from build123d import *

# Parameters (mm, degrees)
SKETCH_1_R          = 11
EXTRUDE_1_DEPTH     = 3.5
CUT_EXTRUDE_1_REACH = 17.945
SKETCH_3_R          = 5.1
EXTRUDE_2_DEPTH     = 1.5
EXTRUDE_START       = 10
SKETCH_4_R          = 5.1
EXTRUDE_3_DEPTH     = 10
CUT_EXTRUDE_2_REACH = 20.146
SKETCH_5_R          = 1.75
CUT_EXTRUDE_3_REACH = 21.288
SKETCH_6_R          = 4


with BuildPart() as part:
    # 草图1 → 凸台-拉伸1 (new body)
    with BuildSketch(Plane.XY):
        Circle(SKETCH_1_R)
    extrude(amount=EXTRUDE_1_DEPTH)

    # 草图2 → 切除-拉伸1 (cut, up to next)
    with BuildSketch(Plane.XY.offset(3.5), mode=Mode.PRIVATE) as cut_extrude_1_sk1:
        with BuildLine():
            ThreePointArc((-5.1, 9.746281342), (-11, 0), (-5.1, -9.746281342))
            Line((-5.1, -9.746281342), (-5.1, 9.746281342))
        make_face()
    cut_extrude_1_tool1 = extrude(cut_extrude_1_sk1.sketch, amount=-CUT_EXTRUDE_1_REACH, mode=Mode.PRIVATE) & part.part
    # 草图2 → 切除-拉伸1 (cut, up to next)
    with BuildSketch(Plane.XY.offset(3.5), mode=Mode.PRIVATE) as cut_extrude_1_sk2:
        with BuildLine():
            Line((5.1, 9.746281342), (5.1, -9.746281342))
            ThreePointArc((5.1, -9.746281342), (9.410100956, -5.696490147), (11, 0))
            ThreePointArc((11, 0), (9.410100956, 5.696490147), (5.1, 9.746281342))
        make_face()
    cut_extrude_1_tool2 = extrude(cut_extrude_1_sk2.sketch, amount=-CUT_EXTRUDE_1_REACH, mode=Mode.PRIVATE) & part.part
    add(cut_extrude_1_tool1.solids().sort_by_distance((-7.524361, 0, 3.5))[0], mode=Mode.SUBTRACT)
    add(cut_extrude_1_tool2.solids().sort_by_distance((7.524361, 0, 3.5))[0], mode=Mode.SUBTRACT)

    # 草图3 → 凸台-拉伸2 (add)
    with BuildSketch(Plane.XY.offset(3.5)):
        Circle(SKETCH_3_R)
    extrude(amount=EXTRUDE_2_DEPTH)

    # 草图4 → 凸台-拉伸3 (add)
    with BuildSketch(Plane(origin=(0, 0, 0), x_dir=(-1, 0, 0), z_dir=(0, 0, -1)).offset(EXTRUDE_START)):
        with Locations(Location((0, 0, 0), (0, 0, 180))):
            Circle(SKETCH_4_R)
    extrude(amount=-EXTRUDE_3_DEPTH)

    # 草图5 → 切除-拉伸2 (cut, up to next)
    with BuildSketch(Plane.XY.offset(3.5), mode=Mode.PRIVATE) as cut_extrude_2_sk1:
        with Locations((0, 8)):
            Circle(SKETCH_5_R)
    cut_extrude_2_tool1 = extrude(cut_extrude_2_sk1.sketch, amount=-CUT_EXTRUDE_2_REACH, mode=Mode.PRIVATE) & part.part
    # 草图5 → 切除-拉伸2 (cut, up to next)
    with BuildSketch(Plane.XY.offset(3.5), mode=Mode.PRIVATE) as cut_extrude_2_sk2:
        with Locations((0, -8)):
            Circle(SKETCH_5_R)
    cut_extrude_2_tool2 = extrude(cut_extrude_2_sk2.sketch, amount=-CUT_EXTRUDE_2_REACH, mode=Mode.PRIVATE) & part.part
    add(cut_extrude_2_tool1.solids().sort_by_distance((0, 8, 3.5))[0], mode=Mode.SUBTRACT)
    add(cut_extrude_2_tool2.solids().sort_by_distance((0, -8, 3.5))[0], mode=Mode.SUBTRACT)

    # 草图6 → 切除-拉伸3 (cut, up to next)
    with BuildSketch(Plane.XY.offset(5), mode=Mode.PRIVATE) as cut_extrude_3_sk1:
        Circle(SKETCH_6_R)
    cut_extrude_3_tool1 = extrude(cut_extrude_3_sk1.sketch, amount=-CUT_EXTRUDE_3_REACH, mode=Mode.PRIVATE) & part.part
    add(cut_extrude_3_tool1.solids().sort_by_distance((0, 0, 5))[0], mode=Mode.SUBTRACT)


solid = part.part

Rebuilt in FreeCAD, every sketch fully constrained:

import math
import FreeCAD as App
import Part
import Sketcher

V = App.Vector
Q = App.Units.Quantity

doc = App.newDocument("Part")
body = doc.addObject("PartDesign::Body", "Body")

sketch1 = doc.addObject("Sketcher::SketchObject", "Sketch")
body.addObject(sketch1)
sketch1.AttachmentSupport = (doc.XY_Plane, [""])
sketch1.MapMode = "FlatFace"
sketch1.addGeometry(Part.Circle(V(0, 0, 0), V(0, 0, 1), 11), False)
sketch1.addConstraint([
    Sketcher.Constraint("Coincident", 0, 3, -1, 1),
    Sketcher.Constraint("Diameter", 0, Q("22 mm")),
])
pad1 = doc.addObject("PartDesign::Pad", "Pad")
body.addObject(pad1)
pad1.Profile = sketch1
pad1.Length = 3.5

sketch2 = doc.addObject("Sketcher::SketchObject", "Sketch001")
body.addObject(sketch2)
sketch2.AttachmentSupport = (doc.XY_Plane, [""])
sketch2.MapMode = "FlatFace"
sketch2.AttachmentOffset = App.Placement(V(0, 0, 3.5), App.Rotation())
sketch2.addGeometry([
    Part.ArcOfCircle(Part.Circle(V(0, 0, 0), V(0, 0, 1), 11), math.radians(118), math.radians(242)),
    Part.LineSegment(V(-5, -10, 0), V(-5, 10, 0)),
], False)
sketch2.addConstraint([
    Sketcher.Constraint("Coincident", 0, 1, 1, 2),
    Sketcher.Constraint("Coincident", 1, 1, 0, 2),
    Sketcher.Constraint("Vertical", 1),
    Sketcher.Constraint("Coincident", 0, 3, -1, 1),
    Sketcher.Constraint("Radius", 0, Q("11 mm")),
    Sketcher.Constraint("DistanceX", 0, 1, -1, 1, Q("5.1 mm")),
])
pocket1 = doc.addObject("PartDesign::Pocket", "Pocket")
body.addObject(pocket1)
pocket1.Profile = sketch2
pocket1.Type = "UpToFirst"

sketch3 = doc.addObject("Sketcher::SketchObject", "Sketch002")
body.addObject(sketch3)
sketch3.AttachmentSupport = (doc.XY_Plane, [""])
sketch3.MapMode = "FlatFace"
sketch3.AttachmentOffset = App.Placement(V(0, 0, 3.5), App.Rotation())
sketch3.addGeometry([
    Part.LineSegment(V(5, 10, 0), V(5, -10, 0)),
    Part.ArcOfCircle(Part.Circle(V(0, 0, 0), V(0, 0, 1), 11), math.radians(-62), math.radians(0)),
    Part.ArcOfCircle(Part.Circle(V(0, 0, 0), V(0, 0, 1), 11), math.radians(0), math.radians(62)),
], False)
sketch3.addConstraint([
    Sketcher.Constraint("Coincident", 0, 2, 1, 1),
    Sketcher.Constraint("Tangent", 1, 2, 2, 1),
    Sketcher.Constraint("Coincident", 2, 2, 0, 1),
    Sketcher.Constraint("Vertical", 0),
    Sketcher.Constraint("Coincident", 1, 3, -1, 1),
    Sketcher.Constraint("Equal", 1, 2),
    Sketcher.Constraint("PointOnObject", 1, 2, -1),
    Sketcher.Constraint("Radius", 1, Q("11 mm")),
    Sketcher.Constraint("DistanceX", -1, 1, 0, 2, Q("5.1 mm")),
])
pocket2 = doc.addObject("PartDesign::Pocket", "Pocket001")
body.addObject(pocket2)
pocket2.Profile = sketch3
pocket2.Type = "UpToFirst"

sketch4 = doc.addObject("Sketcher::SketchObject", "Sketch003")
body.addObject(sketch4)
sketch4.AttachmentSupport = (doc.XY_Plane, [""])
sketch4.MapMode = "FlatFace"
sketch4.AttachmentOffset = App.Placement(V(0, 0, 3.5), App.Rotation())
sketch4.addGeometry(Part.Circle(V(0, 0, 0), V(0, 0, 1), 5), False)
sketch4.addConstraint([
    Sketcher.Constraint("Coincident", 0, 3, -1, 1),
    Sketcher.Constraint("Diameter", 0, Q("10.2 mm")),
])
pad2 = doc.addObject("PartDesign::Pad", "Pad001")
body.addObject(pad2)
pad2.Profile = sketch4
pad2.Length = 1.5

sketch5 = doc.addObject("Sketcher::SketchObject", "Sketch004")
body.addObject(sketch5)
sketch5.AttachmentSupport = (doc.XY_Plane, [""])
sketch5.MapMode = "FlatFace"
sketch5.AttachmentOffset = App.Placement(V(0, 0, -10), App.Rotation())
sketch5.addGeometry(Part.Circle(V(0, 0, 0), V(0, 0, 1), 5), False)
sketch5.addConstraint([
    Sketcher.Constraint("Coincident", 0, 3, -1, 1),
    Sketcher.Constraint("Diameter", 0, Q("10.2 mm")),
])
pad3 = doc.addObject("PartDesign::Pad", "Pad002")
body.addObject(pad3)
pad3.Profile = sketch5
pad3.Length = 10

sketch6 = doc.addObject("Sketcher::SketchObject", "Sketch005")
body.addObject(sketch6)
sketch6.AttachmentSupport = (doc.XY_Plane, [""])
sketch6.MapMode = "FlatFace"
sketch6.AttachmentOffset = App.Placement(V(0, 0, 3.5), App.Rotation())
sketch6.addGeometry(Part.Circle(V(0, 8, 0), V(0, 0, 1), 1.8), False)
sketch6.addConstraint([
    Sketcher.Constraint("PointOnObject", 0, 3, -2),
    Sketcher.Constraint("Diameter", 0, Q("3.5 mm")),
    Sketcher.Constraint("DistanceY", -1, 1, 0, 3, Q("8 mm")),
])
pocket3 = doc.addObject("PartDesign::Pocket", "Pocket002")
body.addObject(pocket3)
pocket3.Profile = sketch6
pocket3.Type = "UpToFirst"

sketch7 = doc.addObject("Sketcher::SketchObject", "Sketch006")
body.addObject(sketch7)
sketch7.AttachmentSupport = (doc.XY_Plane, [""])
sketch7.MapMode = "FlatFace"
sketch7.AttachmentOffset = App.Placement(V(0, 0, 3.5), App.Rotation())
sketch7.addGeometry(Part.Circle(V(0, -8, 0), V(0, 0, 1), 1.8), False)
sketch7.addConstraint([
    Sketcher.Constraint("PointOnObject", 0, 3, -2),
    Sketcher.Constraint("Diameter", 0, Q("3.5 mm")),
    Sketcher.Constraint("DistanceY", 0, 3, -1, 1, Q("8 mm")),
])
pocket4 = doc.addObject("PartDesign::Pocket", "Pocket003")
body.addObject(pocket4)
pocket4.Profile = sketch7
pocket4.Type = "UpToFirst"

sketch8 = doc.addObject("Sketcher::SketchObject", "Sketch007")
body.addObject(sketch8)
sketch8.AttachmentSupport = (doc.XY_Plane, [""])
sketch8.MapMode = "FlatFace"
sketch8.AttachmentOffset = App.Placement(V(0, 0, 5), App.Rotation())
sketch8.addGeometry(Part.Circle(V(0, 0, 0), V(0, 0, 1), 4), False)
sketch8.addConstraint([
    Sketcher.Constraint("Coincident", 0, 3, -1, 1),
    Sketcher.Constraint("Diameter", 0, Q("8 mm")),
])
pocket5 = doc.addObject("PartDesign::Pocket", "Pocket004")
body.addObject(pocket5)
pocket5.Profile = sketch8
pocket5.Type = "UpToFirst"

doc.recompute()
